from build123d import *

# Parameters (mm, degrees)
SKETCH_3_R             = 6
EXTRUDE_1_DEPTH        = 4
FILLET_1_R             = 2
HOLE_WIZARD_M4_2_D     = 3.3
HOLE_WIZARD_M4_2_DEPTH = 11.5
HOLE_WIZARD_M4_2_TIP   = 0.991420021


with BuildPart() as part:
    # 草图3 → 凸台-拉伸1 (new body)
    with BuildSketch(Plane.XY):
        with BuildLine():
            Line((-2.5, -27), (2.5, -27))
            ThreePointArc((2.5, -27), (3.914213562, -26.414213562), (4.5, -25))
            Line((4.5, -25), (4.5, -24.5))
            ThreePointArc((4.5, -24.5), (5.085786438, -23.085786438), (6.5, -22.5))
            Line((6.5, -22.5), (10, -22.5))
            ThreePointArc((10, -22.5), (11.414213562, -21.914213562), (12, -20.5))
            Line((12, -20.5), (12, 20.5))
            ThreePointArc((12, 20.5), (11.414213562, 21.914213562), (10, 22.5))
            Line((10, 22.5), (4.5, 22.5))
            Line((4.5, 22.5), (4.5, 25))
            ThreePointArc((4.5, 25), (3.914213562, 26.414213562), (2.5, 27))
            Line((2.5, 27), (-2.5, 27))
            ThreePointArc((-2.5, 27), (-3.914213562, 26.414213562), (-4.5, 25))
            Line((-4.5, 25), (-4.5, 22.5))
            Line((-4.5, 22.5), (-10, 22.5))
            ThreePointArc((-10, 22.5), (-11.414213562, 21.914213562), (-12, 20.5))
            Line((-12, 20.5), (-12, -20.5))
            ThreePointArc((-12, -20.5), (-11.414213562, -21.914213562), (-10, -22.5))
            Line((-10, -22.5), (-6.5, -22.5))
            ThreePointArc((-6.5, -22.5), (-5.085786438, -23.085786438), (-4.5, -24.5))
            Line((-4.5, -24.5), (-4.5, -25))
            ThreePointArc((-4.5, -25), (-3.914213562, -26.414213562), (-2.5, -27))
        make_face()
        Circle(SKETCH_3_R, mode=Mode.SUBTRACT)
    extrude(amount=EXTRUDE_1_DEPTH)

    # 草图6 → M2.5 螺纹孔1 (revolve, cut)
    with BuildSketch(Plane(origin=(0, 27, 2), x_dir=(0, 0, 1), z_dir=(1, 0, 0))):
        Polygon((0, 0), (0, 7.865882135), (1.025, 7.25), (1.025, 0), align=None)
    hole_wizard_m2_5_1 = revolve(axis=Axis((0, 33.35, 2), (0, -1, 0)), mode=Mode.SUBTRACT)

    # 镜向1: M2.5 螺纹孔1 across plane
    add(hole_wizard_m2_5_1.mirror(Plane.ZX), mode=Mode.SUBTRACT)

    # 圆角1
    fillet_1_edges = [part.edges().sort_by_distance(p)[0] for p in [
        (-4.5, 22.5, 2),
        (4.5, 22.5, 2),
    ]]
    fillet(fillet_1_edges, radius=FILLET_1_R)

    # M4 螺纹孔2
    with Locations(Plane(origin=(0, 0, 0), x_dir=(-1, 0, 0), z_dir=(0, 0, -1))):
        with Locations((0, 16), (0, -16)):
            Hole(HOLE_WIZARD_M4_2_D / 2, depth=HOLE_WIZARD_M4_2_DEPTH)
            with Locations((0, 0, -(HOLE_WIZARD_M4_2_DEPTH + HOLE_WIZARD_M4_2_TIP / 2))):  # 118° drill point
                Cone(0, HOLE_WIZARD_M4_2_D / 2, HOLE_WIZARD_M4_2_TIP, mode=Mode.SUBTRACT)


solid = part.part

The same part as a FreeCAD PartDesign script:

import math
import FreeCAD as App
import Part
import Sketcher
Q = App.Units.Quantity


def edges_at(feature, points):
    """Names of the edges that pass closest to the given points."""
    edges = feature.Shape.Edges
    near = lambda p: min(range(len(edges)), key=lambda i: edges[i].distToShape(Part.Vertex(*p))[0])
    return sorted({f"Edge{near(p) + 1}" for p in points})


def add_polygon(sketch, points):
    """Adds a closed chain of lines whose ends are joined by coincident constraints."""
    first, n = sketch.GeometryCount, len(points)
    for a, b in zip(points, points[1:] + points[:1]):
        sketch.addGeometry(Part.LineSegment(App.Vector(*a, 0), App.Vector(*b, 0)), False)
    for i in range(n):
        sketch.addConstraint(Sketcher.Constraint("Coincident", first + i, 2, first + (i + 1) % n, 1))

doc = App.newDocument("Part")
body = doc.addObject("PartDesign::Body", "Body")

# Sketch on XY plane
sketch1 = body.newObject("Sketcher::SketchObject", "Sketch")
sketch1.AttachmentSupport = (doc.getObject("XY_Plane"), [""])
sketch1.MapMode = "FlatFace"
sketch1.addGeometry([
    Part.LineSegment(App.Vector(-2.5, -27, 0), App.Vector(2.5, -27, 0)),  # 0
    Part.ArcOfCircle(Part.Circle(App.Vector(2.5, -25, 0), App.Vector(0, 0, 1), 2), math.radians(-90), math.radians(0)),  # 1
    Part.LineSegment(App.Vector(4.5, -25, 0), App.Vector(4.5, -24.5, 0)),  # 2
    Part.ArcOfCircle(Part.Circle(App.Vector(6.5, -24.5, 0), App.Vector(0, 0, 1), 2), math.radians(90), math.radians(180)),  # 3
    Part.LineSegment(App.Vector(6.5, -22.5, 0), App.Vector(10, -22.5, 0)),  # 4
    Part.ArcOfCircle(Part.Circle(App.Vector(10, -20.5, 0), App.Vector(0, 0, 1), 2), math.radians(-90), math.radians(0)),  # 5
    Part.LineSegment(App.Vector(12, -20.5, 0), App.Vector(12, 20.5, 0)),  # 6
    Part.ArcOfCircle(Part.Circle(App.Vector(10, 20.5, 0), App.Vector(0, 0, 1), 2), math.radians(0), math.radians(90)),  # 7
    Part.LineSegment(App.Vector(10, 22.5, 0), App.Vector(4.5, 22.5, 0)),  # 8
    Part.LineSegment(App.Vector(4.5, 22.5, 0), App.Vector(4.5, 25, 0)),  # 9
    Part.ArcOfCircle(Part.Circle(App.Vector(2.5, 25, 0), App.Vector(0, 0, 1), 2), math.radians(0), math.radians(90)),  # 10
    Part.LineSegment(App.Vector(2.5, 27, 0), App.Vector(-2.5, 27, 0)),  # 11
    Part.ArcOfCircle(Part.Circle(App.Vector(-2.5, 25, 0), App.Vector(0, 0, 1), 2), math.radians(90), math.radians(180)),  # 12
    Part.LineSegment(App.Vector(-4.5, 25, 0), App.Vector(-4.5, 22.5, 0)),  # 13
    Part.LineSegment(App.Vector(-4.5, 22.5, 0), App.Vector(-10, 22.5, 0)),  # 14
    Part.ArcOfCircle(Part.Circle(App.Vector(-10, 20.5, 0), App.Vector(0, 0, 1), 2), math.radians(90), math.radians(180)),  # 15
    Part.LineSegment(App.Vector(-12, 20.5, 0), App.Vector(-12, -20.5, 0)),  # 16
    Part.ArcOfCircle(Part.Circle(App.Vector(-10, -20.5, 0), App.Vector(0, 0, 1), 2), math.radians(-180), math.radians(-90)),  # 17
    Part.LineSegment(App.Vector(-10, -22.5, 0), App.Vector(-6.5, -22.5, 0)),  # 18
    Part.ArcOfCircle(Part.Circle(App.Vector(-6.5, -24.5, 0), App.Vector(0, 0, 1), 2), math.radians(0), math.radians(90)),  # 19
    Part.LineSegment(App.Vector(-4.5, -24.5, 0), App.Vector(-4.5, -25, 0)),  # 20
    Part.ArcOfCircle(Part.Circle(App.Vector(-2.5, -25, 0), App.Vector(0, 0, 1), 2), math.radians(-180), math.radians(-90)),  # 21
    Part.Circle(App.Vector(0, 0, 0), App.Vector(0, 0, 1), 6),  # 22
], False)
sketch1.addConstraint([
    Sketcher.Constraint("Tangent", 0, 2, 1, 1),
    Sketcher.Constraint("Tangent", 1, 2, 2, 1),
    Sketcher.Constraint("Tangent", 2, 2, 3, 2),
    Sketcher.Constraint("Tangent", 3, 1, 4, 1),
    Sketcher.Constraint("Tangent", 4, 2, 5, 1),
    Sketcher.Constraint("Tangent", 5, 2, 6, 1),
    Sketcher.Constraint("Tangent", 6, 2, 7, 1),
    Sketcher.Constraint("Tangent", 7, 2, 8, 1),
    Sketcher.Constraint("Coincident", 8, 2, 9, 1),
    Sketcher.Constraint("Tangent", 9, 2, 10, 1),
    Sketcher.Constraint("Tangent", 10, 2, 11, 1),
    Sketcher.Constraint("Tangent", 11, 2, 12, 1),
    Sketcher.Constraint("Tangent", 12, 2, 13, 1),
    Sketcher.Constraint("Coincident", 13, 2, 14, 1),
    Sketcher.Constraint("Tangent", 14, 2, 15, 1),
    Sketcher.Constraint("Tangent", 15, 2, 16, 1),
    Sketcher.Constraint("Tangent", 16, 2, 17, 1),
    Sketcher.Constraint("Tangent", 17, 2, 18, 1),
    Sketcher.Constraint("Tangent", 18, 2, 19, 2),
    Sketcher.Constraint("Tangent", 19, 1, 20, 1),
    Sketcher.Constraint("Tangent", 20, 2, 21, 1),
    Sketcher.Constraint("Tangent", 21, 2, 0, 1),
    Sketcher.Constraint("Horizontal", 0),
    Sketcher.Constraint("Vertical", 2),
    Sketcher.Constraint("Horizontal", 4),
    Sketcher.Constraint("Vertical", 6),
    Sketcher.Constraint("Horizontal", 8),
    Sketcher.Constraint("Vertical", 9),
    Sketcher.Constraint("Horizontal", 11),
    Sketcher.Constraint("Vertical", 13),
    Sketcher.Constraint("Horizontal", 14),
    Sketcher.Constraint("Vertical", 16),
    Sketcher.Constraint("Horizontal", 18),
    Sketcher.Constraint("Vertical", 20),
    Sketcher.Constraint("Coincident", 22, 3, -1, 1),
    Sketcher.Constraint("Equal", 1, 3),
    Sketcher.Constraint("Equal", 3, 5),
    Sketcher.Constraint("Equal", 5, 7),
    Sketcher.Constraint("Equal", 7, 10),
    Sketcher.Constraint("Equal", 10, 12),
    Sketcher.Constraint("Equal", 12, 15),
    Sketcher.Constraint("Equal", 15, 17),
    Sketcher.Constraint("Equal", 17, 19),
    Sketcher.Constraint("Equal", 19, 21),
    Sketcher.Constraint("Symmetric", 1, 3, 12, 3, -1, 1),
    Sketcher.Constraint("Symmetric", 5, 3, 15, 3, -1, 1),
    Sketcher.Constraint("Symmetric", 3, 3, 19, 3, -2),
    Sketcher.Constraint("Symmetric", 8, 2, 13, 2, -2),
    Sketcher.Constraint("Diameter", 22, Q("12 mm")),
    Sketcher.Constraint("Radius", 1, Q("2 mm")),
    Sketcher.Constraint("DistanceX", 0, 1, 0, 2, Q("5 mm")),
    Sketcher.Constraint("DistanceY", 6, 1, 6, 2, Q("41 mm")),
    Sketcher.Constraint("DistanceX", 4, 1, 4, 2, Q("3.5 mm")),
    Sketcher.Constraint("DistanceY", 2, 1, 2, 2, Q("0.5 mm")),
])
pad1 = body.newObject("PartDesign::Pad", "Pad")
pad1.Profile = sketch1
pad1.Length = 4

# Sketch on YZ plane
sketch2 = body.newObject("Sketcher::SketchObject", "Sketch001")
sketch2.AttachmentSupport = (doc.getObject("YZ_Plane"), [""])
sketch2.MapMode = "FlatFace"
add_polygon(sketch2, [(19.1, 2), (27, 2), (27, 3), (19.8, 3)])  # lines 0-3
sketch2.addGeometry(Part.LineSegment(App.Vector(27, 2, 0), App.Vector(19.1, 2, 0)), True)  # axis
sketch2.addConstraint([
    Sketcher.Constraint("Horizontal", 0),
    Sketcher.Constraint("Vertical", 1),
    Sketcher.Constraint("Horizontal", 2),
    Sketcher.Constraint("Horizontal", 4),
    Sketcher.Constraint("Coincident", 4, 1, 0, 2),
    Sketcher.Constraint("Equal", 0, 4),
    Sketcher.Constraint("Angle", 3, Q("-121 deg")),
    Sketcher.Constraint("DistanceX", -1, 1, 0, 2, Q("27 mm")),
    Sketcher.Constraint("DistanceY", -1, 1, 0, 2, Q("2 mm")),
    Sketcher.Constraint("DistanceX", 2, 2, 2, 1, Q("7.25 mm")),
    Sketcher.Constraint("DistanceY", 1, 1, 1, 2, Q("1.025 mm")),
])
groove = body.newObject("PartDesign::Groove", "Groove")
groove.Profile = sketch2
groove.ReferenceAxis = (sketch2, ["Axis0"])
groove.Angle = 360
doc.recompute()

mirrored = body.newObject("PartDesign::Mirrored", "Mirrored")
mirrored.Originals = [groove]
mirrored.MirrorPlane = (doc.getObject("XZ_Plane"), [""])
body.Tip = mirrored
doc.recompute()

fillet = body.newObject("PartDesign::Fillet", "Fillet")
fillet.Base = (mirrored, edges_at(mirrored, [(-4.5, 22.5, 2), (4.5, 22.5, 2)]))
fillet.Radius = 2

# Sketch on XY plane
sketch3 = body.newObject("Sketcher::SketchObject", "Sketch002")
sketch3.AttachmentSupport = (doc.getObject("XY_Plane"), [""])
sketch3.MapMode = "FlatFace"
sketch3.addGeometry([
    Part.Circle(App.Vector(0, 16, 0), App.Vector(0, 0, 1), 1.6),
    Part.Circle(App.Vector(0, -16, 0), App.Vector(0, 0, 1), 1.6),
], False)
sketch3.addConstraint([
    Sketcher.Constraint("Equal", 0, 1),
    Sketcher.Constraint("Symmetric", 0, 3, 1, 3, -1, 1),
    Sketcher.Constraint("PointOnObject", 0, 3, -2),
    Sketcher.Constraint("Diameter", 0, Q("3.3 mm")),
    Sketcher.Constraint("DistanceY", -1, 1, 0, 3, Q("16 mm")),
])
doc.recompute()
hole = body.newObject("PartDesign::Hole", "Hole")
hole.Profile = sketch3
hole.ThreadType = "None"
hole.Diameter = 3.3
hole.DepthType = "Dimension"
hole.Depth = 11.5
hole.DrillPoint = "Angled"
hole.DrillPointAngle = 118
hole.Reversed = True

doc.recompute()
